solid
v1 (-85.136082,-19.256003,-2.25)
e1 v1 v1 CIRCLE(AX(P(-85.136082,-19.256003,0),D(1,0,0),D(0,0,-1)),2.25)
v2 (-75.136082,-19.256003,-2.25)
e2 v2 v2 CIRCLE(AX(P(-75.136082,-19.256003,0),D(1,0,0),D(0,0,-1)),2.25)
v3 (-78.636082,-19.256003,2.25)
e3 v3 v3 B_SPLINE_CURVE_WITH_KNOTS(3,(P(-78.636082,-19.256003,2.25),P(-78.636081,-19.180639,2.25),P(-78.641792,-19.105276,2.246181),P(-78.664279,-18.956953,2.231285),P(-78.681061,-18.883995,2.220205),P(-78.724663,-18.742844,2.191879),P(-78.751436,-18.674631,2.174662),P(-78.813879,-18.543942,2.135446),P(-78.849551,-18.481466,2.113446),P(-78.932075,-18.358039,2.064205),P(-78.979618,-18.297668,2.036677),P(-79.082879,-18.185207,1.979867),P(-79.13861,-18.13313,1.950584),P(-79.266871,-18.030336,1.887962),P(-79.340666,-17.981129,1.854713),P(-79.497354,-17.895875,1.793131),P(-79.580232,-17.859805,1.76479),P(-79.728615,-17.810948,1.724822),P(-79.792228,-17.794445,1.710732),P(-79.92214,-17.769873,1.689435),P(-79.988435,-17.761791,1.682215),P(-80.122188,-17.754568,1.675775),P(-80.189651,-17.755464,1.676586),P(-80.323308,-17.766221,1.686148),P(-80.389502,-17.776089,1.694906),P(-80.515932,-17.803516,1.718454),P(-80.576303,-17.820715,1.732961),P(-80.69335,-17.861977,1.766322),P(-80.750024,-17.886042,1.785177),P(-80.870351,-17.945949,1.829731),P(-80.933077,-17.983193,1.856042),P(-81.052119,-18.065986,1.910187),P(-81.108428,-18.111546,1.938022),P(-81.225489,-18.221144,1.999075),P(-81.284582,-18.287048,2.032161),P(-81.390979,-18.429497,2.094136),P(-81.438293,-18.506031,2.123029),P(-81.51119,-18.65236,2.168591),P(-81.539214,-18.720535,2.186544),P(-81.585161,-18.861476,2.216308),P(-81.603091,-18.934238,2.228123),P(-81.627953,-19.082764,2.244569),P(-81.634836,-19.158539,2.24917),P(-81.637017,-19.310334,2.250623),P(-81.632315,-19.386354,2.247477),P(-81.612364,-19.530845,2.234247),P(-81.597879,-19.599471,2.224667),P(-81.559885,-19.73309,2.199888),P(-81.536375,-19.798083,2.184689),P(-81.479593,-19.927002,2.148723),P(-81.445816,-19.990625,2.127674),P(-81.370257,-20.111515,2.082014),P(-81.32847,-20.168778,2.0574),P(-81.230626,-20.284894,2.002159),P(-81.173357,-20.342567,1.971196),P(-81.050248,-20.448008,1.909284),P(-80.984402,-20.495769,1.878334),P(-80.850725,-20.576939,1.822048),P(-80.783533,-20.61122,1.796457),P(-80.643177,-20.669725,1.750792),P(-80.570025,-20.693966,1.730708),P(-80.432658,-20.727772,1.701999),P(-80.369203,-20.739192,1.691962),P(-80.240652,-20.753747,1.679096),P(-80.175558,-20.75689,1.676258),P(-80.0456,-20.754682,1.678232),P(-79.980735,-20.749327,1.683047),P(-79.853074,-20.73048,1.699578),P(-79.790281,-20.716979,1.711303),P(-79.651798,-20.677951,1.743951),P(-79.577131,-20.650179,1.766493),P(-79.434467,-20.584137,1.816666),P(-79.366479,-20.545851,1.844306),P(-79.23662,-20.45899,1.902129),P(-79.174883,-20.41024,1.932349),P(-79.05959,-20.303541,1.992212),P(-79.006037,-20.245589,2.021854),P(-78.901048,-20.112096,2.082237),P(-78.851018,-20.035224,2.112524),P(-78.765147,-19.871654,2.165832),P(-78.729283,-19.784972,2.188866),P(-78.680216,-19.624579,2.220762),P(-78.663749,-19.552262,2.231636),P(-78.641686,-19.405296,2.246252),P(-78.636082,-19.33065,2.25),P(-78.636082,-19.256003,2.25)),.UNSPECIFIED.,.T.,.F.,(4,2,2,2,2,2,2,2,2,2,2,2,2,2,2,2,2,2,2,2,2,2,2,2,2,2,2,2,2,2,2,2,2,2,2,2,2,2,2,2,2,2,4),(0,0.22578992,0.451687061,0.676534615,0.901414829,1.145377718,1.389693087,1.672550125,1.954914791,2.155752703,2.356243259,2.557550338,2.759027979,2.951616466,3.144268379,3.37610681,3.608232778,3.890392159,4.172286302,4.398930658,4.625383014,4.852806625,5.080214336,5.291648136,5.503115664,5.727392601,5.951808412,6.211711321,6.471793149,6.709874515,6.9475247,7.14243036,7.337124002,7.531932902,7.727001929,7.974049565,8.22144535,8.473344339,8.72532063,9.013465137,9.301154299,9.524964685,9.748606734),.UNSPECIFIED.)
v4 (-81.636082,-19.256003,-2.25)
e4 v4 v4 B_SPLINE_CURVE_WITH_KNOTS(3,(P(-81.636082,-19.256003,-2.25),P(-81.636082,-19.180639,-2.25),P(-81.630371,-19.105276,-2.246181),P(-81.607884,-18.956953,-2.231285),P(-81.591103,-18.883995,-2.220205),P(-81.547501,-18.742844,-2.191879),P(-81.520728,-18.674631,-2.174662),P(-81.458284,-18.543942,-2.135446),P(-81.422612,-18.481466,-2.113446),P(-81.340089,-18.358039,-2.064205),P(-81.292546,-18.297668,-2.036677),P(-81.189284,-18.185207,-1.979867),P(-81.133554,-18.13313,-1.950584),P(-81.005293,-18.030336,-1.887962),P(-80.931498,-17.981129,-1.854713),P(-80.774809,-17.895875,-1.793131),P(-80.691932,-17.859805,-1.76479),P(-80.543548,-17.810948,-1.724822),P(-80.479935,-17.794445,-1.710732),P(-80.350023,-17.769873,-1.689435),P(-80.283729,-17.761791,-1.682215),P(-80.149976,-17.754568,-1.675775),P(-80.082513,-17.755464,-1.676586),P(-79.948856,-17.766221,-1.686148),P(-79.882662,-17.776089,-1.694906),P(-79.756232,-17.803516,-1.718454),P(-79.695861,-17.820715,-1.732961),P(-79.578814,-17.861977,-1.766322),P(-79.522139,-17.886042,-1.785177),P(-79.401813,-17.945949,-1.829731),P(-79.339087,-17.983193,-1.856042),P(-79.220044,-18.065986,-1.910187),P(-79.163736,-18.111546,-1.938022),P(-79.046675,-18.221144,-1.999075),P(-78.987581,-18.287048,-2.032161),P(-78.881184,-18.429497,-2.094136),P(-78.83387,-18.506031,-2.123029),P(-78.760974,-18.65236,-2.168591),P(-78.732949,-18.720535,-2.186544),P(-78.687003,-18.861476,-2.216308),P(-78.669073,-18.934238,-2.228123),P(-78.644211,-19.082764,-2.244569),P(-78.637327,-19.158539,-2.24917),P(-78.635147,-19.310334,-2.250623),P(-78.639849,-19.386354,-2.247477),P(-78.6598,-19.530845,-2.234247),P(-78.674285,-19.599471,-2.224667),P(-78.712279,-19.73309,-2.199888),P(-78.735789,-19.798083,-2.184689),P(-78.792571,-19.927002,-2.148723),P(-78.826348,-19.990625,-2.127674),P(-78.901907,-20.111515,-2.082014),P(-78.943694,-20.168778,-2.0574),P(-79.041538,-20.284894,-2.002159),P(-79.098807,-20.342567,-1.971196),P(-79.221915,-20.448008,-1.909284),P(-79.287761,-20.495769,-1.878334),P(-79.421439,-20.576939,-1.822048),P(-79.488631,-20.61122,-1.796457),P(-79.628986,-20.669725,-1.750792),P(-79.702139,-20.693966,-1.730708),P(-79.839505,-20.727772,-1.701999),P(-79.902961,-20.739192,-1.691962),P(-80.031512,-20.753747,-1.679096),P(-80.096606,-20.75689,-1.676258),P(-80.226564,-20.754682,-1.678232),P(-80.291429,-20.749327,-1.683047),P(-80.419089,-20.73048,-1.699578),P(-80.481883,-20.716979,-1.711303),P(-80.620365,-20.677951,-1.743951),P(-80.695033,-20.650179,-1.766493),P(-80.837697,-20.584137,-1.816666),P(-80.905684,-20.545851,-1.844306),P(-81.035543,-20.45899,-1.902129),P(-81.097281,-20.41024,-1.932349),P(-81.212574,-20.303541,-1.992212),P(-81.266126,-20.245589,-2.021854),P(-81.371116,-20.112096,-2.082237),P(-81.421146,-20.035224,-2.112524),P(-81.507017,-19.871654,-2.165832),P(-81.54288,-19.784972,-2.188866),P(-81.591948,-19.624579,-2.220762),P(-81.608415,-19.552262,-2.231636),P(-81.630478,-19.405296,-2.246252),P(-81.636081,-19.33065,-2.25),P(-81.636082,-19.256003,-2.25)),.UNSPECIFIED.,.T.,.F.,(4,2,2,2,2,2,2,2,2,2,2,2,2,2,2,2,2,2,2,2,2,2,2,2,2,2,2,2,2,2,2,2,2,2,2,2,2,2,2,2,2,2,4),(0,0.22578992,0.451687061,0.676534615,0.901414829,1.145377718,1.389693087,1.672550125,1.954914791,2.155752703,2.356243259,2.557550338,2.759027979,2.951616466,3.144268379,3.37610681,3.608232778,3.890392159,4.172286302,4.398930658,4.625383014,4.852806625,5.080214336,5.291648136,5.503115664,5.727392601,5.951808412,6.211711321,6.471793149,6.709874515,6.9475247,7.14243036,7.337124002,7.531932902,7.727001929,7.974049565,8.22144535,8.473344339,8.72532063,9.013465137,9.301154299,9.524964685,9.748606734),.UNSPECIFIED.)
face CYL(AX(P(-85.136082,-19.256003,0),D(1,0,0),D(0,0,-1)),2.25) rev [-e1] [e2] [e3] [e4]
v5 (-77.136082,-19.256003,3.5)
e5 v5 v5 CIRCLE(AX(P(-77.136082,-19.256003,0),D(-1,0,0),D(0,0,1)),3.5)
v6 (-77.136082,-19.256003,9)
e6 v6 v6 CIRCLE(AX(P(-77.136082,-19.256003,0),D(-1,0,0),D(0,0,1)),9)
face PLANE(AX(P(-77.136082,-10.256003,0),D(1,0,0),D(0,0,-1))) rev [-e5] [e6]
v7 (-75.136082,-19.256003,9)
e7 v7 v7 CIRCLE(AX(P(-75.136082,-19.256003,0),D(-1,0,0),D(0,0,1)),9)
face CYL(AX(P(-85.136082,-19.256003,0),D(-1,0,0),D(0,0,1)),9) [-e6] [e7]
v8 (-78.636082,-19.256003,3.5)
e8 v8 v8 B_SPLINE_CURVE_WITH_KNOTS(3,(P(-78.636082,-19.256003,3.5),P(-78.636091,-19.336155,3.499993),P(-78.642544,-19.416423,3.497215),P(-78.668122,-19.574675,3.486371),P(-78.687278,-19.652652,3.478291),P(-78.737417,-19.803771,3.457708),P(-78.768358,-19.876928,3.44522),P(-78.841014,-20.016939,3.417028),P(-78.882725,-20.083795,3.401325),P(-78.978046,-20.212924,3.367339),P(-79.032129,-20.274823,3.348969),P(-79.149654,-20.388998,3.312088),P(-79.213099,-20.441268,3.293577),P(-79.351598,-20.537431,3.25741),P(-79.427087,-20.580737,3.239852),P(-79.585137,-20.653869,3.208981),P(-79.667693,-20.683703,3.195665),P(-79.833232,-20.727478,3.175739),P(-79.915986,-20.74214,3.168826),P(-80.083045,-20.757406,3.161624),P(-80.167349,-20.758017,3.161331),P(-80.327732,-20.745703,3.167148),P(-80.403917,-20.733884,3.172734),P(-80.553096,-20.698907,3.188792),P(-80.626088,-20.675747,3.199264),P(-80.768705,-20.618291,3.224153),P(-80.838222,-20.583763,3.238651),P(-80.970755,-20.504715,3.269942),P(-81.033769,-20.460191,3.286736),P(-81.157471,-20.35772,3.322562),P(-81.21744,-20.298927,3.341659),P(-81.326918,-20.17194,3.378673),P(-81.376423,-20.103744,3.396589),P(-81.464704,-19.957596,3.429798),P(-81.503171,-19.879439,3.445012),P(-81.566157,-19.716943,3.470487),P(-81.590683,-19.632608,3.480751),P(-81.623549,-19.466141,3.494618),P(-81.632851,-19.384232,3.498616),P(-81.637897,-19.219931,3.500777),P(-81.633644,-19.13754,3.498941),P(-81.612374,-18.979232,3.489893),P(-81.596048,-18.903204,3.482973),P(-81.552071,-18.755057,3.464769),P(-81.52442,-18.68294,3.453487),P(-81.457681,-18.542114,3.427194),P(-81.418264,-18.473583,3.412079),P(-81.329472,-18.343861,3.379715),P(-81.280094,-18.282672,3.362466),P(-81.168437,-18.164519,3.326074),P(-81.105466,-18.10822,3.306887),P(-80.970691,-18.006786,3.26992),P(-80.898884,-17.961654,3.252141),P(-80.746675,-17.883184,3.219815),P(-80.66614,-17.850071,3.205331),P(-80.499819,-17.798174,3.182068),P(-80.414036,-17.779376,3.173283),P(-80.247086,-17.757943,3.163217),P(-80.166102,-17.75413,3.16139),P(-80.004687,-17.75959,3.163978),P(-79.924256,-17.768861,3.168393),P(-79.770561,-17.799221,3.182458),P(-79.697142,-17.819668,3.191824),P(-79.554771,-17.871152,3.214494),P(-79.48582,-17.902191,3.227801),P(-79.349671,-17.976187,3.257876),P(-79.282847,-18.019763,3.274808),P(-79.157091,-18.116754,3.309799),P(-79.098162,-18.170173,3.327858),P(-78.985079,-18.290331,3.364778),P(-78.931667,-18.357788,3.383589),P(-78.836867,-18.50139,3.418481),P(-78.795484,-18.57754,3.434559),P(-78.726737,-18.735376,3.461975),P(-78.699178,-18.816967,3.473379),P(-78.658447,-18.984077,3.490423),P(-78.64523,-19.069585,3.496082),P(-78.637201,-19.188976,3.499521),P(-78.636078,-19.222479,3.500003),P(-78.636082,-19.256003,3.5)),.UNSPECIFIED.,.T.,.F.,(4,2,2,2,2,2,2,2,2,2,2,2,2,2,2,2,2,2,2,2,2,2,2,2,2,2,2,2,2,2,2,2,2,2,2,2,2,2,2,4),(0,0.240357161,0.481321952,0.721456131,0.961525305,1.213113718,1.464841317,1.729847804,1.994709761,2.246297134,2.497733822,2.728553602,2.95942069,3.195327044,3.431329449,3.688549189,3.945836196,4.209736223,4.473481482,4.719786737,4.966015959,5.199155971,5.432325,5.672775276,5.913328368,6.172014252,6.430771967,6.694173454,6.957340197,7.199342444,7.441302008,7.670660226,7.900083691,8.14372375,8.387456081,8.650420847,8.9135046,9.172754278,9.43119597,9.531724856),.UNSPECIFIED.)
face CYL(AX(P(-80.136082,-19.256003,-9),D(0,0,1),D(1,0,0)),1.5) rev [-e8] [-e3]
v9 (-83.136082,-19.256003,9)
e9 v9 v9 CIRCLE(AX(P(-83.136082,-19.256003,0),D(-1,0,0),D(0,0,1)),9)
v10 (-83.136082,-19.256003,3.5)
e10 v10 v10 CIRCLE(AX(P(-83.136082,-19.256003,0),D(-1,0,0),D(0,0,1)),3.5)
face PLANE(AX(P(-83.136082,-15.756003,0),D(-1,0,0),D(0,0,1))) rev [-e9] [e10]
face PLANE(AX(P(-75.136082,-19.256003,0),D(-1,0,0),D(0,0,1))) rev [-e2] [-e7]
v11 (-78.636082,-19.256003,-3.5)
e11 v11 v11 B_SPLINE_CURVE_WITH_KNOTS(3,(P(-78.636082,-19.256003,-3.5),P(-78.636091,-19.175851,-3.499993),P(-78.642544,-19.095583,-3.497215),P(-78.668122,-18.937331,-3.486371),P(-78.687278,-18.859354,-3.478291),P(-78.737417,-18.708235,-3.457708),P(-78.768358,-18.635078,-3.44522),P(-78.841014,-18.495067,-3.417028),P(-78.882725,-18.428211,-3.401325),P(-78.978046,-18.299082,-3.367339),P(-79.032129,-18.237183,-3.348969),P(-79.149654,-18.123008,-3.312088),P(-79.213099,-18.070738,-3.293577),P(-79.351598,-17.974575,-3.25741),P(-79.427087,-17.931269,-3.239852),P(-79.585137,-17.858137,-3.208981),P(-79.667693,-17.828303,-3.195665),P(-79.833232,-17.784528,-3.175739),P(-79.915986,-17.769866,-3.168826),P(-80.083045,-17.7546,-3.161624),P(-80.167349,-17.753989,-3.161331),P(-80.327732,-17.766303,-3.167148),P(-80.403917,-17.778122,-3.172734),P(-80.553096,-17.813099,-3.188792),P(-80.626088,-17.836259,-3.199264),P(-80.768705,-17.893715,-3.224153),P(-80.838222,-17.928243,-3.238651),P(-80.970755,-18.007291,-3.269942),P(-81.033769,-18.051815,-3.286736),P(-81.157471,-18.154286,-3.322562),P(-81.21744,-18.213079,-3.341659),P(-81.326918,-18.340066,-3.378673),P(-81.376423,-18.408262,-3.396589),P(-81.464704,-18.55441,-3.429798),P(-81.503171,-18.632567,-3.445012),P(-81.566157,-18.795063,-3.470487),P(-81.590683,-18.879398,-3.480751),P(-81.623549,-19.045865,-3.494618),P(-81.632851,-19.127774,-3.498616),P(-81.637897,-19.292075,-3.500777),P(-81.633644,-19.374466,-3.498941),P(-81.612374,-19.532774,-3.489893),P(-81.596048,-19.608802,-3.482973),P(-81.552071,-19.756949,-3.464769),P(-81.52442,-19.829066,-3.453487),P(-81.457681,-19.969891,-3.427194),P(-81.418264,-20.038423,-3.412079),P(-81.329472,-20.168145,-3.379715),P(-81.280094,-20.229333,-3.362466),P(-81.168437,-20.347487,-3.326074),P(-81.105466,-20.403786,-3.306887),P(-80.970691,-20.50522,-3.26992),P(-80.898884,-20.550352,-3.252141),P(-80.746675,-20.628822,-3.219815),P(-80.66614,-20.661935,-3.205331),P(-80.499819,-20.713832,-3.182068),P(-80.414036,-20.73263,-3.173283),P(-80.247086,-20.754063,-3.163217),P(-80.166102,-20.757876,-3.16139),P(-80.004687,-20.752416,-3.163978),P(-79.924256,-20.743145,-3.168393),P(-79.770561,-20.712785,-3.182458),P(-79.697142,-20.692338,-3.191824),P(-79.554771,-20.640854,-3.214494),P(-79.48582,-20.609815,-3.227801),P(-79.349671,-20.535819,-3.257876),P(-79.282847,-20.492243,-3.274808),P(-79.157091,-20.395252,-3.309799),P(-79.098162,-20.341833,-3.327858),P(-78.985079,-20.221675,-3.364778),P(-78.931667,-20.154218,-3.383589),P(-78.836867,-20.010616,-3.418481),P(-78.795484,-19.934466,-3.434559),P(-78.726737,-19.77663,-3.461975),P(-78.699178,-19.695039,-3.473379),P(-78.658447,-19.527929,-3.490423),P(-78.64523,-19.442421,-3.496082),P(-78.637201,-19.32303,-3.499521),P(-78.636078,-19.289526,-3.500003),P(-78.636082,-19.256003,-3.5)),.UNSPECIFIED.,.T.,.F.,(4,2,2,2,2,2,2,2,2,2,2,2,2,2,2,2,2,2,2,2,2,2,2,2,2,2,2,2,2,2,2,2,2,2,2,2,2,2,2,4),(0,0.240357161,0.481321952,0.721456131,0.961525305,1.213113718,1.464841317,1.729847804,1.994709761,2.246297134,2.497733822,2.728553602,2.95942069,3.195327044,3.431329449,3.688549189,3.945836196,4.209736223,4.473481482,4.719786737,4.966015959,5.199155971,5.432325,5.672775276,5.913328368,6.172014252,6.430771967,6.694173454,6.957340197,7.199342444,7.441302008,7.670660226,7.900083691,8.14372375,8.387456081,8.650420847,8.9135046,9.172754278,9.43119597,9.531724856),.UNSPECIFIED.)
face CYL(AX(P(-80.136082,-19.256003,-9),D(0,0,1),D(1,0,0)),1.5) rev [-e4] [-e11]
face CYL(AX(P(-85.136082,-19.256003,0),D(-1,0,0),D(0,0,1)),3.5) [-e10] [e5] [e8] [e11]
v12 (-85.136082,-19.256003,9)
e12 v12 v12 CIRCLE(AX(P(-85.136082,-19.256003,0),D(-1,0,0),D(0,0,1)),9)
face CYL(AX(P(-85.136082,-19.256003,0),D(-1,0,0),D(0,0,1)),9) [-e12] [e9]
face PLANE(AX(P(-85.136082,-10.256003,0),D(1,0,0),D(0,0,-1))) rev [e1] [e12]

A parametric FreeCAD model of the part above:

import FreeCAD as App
import Part
import Sketcher

V = App.Vector
Q = App.Units.Quantity

doc = App.newDocument("Part")
body = doc.addObject("PartDesign::Body", "Body")

sketch1 = body.newObject("Sketcher::SketchObject", "Sketch")
sketch1.AttachmentSupport = (doc.getObject("XY_Plane"), [""])
sketch1.MapMode = "FlatFace"
sketch1.addGeometry(Part.LineSegment(V(-85.1, -10.3, 0), V(-85.1, -19.3, 0)), False)
sketch1.addGeometry(Part.LineSegment(V(-85.1, -19.3, 0), V(-75.1, -19.3, 0)), False)
sketch1.addGeometry(Part.LineSegment(V(-75.1, -19.3, 0), V(-75.1, -10.3, 0)), False)
sketch1.addGeometry(Part.LineSegment(V(-75.1, -10.3, 0), V(-77.1, -10.3, 0)), False)
sketch1.addGeometry(Part.LineSegment(V(-77.1, -10.3, 0), V(-77.1, -15.8, 0)), False)
sketch1.addGeometry(Part.LineSegment(V(-77.1, -15.8, 0), V(-83.1, -15.8, 0)), False)
sketch1.addGeometry(Part.LineSegment(V(-83.1, -15.8, 0), V(-83.1, -10.3, 0)), False)
sketch1.addGeometry(Part.LineSegment(V(-83.1, -10.3, 0), V(-85.1, -10.3, 0)), False)
sketch1.addGeometry(Part.LineSegment(V(-85.1, -19.3, 0), V(-75.1, -19.3, 0)), True)
sketch1.addConstraint(Sketcher.Constraint("Coincident", 0, 2, 1, 1))
sketch1.addConstraint(Sketcher.Constraint("Coincident", 1, 2, 2, 1))
sketch1.addConstraint(Sketcher.Constraint("Coincident", 2, 2, 3, 1))
sketch1.addConstraint(Sketcher.Constraint("Coincident", 3, 2, 4, 1))
sketch1.addConstraint(Sketcher.Constraint("Coincident", 4, 2, 5, 1))
sketch1.addConstraint(Sketcher.Constraint("Coincident", 5, 2, 6, 1))
sketch1.addConstraint(Sketcher.Constraint("Coincident", 6, 2, 7, 1))
sketch1.addConstraint(Sketcher.Constraint("Coincident", 7, 2, 0, 1))
sketch1.addConstraint(Sketcher.Constraint("Vertical", 0))
sketch1.addConstraint(Sketcher.Constraint("Horizontal", 1))
sketch1.addConstraint(Sketcher.Constraint("Vertical", 2))
sketch1.addConstraint(Sketcher.Constraint("Horizontal", 3))
sketch1.addConstraint(Sketcher.Constraint("Vertical", 4))
sketch1.addConstraint(Sketcher.Constraint("Horizontal", 5))
sketch1.addConstraint(Sketcher.Constraint("Vertical", 6))
sketch1.addConstraint(Sketcher.Constraint("Horizontal", 7))
sketch1.addConstraint(Sketcher.Constraint("Horizontal", 8))
sketch1.addConstraint(Sketcher.Constraint("Coincident", 8, 1, 0, 2))
sketch1.addConstraint(Sketcher.Constraint("Horizontal", 3, 2, 6, 2))
sketch1.addConstraint(Sketcher.Constraint("Vertical", 2, 2, 8, 2))
sketch1.addConstraint(Sketcher.Constraint("Equal", 3, 7))
sketch1.addConstraint(Sketcher.Constraint("DistanceX", 1, 1, 1, 2, Q("10 mm")))
sketch1.addConstraint(Sketcher.Constraint("DistanceX", 3, 2, 3, 1, Q("2 mm")))
sketch1.addConstraint(Sketcher.Constraint("DistanceY", 0, 2, 0, 1, Q("9 mm")))
sketch1.addConstraint(Sketcher.Constraint("DistanceY", 4, 2, 4, 1, Q("5.5 mm")))
sketch1.addConstraint(Sketcher.Constraint("DistanceX", 0, 2, -1, 1, Q("85.136082 mm")))
sketch1.addConstraint(Sketcher.Constraint("DistanceY", 0, 2, -1, 1, Q("19.256003 mm")))
revolution = body.newObject("PartDesign::Revolution", "Revolution")
revolution.Profile = sketch1
revolution.ReferenceAxis = (sketch1, ["Axis0"])
revolution.Angle = 360

sketch2 = body.newObject("Sketcher::SketchObject", "Sketch001")
sketch2.AttachmentSupport = (doc.getObject("YZ_Plane"), [""])
sketch2.MapMode = "FlatFace"
sketch2.AttachmentOffset = App.Placement(V(0, 0, -75.136082), App.Rotation())
sketch2.addGeometry(Part.Circle(V(-19.3, 0, 0), V(0, 0, 1), 2.2), False)
sketch2.addConstraint(Sketcher.Constraint("PointOnObject", 0, 3, -1))
sketch2.addConstraint(Sketcher.Constraint("Diameter", 0, Q("4.5 mm")))
sketch2.addConstraint(Sketcher.Constraint("DistanceX", 0, 3, -1, 1, Q("19.256003 mm")))
pocket1 = body.newObject("PartDesign::Pocket", "Pocket")
pocket1.Profile = sketch2
pocket1.Type = "ThroughAll"

sketch3 = body.newObject("Sketcher::SketchObject", "Sketch002")
sketch3.AttachmentSupport = (doc.getObject("XY_Plane"), [""])
sketch3.MapMode = "FlatFace"
sketch3.addGeometry(Part.Circle(V(-80.1, -19.3, 0), V(0, 0, 1), 1.5), False)
sketch3.addConstraint(Sketcher.Constraint("Diameter", 0, Q("3 mm")))
sketch3.addConstraint(Sketcher.Constraint("DistanceX", 0, 3, -1, 1, Q("80.136082 mm")))
sketch3.addConstraint(Sketcher.Constraint("DistanceY", 0, 3, -1, 1, Q("19.256003 mm")))
pocket2 = body.newObject("PartDesign::Pocket", "Pocket001")
pocket2.Profile = sketch3
pocket2.Type = "ThroughAll"
pocket2.Midplane = True

doc.recompute()
